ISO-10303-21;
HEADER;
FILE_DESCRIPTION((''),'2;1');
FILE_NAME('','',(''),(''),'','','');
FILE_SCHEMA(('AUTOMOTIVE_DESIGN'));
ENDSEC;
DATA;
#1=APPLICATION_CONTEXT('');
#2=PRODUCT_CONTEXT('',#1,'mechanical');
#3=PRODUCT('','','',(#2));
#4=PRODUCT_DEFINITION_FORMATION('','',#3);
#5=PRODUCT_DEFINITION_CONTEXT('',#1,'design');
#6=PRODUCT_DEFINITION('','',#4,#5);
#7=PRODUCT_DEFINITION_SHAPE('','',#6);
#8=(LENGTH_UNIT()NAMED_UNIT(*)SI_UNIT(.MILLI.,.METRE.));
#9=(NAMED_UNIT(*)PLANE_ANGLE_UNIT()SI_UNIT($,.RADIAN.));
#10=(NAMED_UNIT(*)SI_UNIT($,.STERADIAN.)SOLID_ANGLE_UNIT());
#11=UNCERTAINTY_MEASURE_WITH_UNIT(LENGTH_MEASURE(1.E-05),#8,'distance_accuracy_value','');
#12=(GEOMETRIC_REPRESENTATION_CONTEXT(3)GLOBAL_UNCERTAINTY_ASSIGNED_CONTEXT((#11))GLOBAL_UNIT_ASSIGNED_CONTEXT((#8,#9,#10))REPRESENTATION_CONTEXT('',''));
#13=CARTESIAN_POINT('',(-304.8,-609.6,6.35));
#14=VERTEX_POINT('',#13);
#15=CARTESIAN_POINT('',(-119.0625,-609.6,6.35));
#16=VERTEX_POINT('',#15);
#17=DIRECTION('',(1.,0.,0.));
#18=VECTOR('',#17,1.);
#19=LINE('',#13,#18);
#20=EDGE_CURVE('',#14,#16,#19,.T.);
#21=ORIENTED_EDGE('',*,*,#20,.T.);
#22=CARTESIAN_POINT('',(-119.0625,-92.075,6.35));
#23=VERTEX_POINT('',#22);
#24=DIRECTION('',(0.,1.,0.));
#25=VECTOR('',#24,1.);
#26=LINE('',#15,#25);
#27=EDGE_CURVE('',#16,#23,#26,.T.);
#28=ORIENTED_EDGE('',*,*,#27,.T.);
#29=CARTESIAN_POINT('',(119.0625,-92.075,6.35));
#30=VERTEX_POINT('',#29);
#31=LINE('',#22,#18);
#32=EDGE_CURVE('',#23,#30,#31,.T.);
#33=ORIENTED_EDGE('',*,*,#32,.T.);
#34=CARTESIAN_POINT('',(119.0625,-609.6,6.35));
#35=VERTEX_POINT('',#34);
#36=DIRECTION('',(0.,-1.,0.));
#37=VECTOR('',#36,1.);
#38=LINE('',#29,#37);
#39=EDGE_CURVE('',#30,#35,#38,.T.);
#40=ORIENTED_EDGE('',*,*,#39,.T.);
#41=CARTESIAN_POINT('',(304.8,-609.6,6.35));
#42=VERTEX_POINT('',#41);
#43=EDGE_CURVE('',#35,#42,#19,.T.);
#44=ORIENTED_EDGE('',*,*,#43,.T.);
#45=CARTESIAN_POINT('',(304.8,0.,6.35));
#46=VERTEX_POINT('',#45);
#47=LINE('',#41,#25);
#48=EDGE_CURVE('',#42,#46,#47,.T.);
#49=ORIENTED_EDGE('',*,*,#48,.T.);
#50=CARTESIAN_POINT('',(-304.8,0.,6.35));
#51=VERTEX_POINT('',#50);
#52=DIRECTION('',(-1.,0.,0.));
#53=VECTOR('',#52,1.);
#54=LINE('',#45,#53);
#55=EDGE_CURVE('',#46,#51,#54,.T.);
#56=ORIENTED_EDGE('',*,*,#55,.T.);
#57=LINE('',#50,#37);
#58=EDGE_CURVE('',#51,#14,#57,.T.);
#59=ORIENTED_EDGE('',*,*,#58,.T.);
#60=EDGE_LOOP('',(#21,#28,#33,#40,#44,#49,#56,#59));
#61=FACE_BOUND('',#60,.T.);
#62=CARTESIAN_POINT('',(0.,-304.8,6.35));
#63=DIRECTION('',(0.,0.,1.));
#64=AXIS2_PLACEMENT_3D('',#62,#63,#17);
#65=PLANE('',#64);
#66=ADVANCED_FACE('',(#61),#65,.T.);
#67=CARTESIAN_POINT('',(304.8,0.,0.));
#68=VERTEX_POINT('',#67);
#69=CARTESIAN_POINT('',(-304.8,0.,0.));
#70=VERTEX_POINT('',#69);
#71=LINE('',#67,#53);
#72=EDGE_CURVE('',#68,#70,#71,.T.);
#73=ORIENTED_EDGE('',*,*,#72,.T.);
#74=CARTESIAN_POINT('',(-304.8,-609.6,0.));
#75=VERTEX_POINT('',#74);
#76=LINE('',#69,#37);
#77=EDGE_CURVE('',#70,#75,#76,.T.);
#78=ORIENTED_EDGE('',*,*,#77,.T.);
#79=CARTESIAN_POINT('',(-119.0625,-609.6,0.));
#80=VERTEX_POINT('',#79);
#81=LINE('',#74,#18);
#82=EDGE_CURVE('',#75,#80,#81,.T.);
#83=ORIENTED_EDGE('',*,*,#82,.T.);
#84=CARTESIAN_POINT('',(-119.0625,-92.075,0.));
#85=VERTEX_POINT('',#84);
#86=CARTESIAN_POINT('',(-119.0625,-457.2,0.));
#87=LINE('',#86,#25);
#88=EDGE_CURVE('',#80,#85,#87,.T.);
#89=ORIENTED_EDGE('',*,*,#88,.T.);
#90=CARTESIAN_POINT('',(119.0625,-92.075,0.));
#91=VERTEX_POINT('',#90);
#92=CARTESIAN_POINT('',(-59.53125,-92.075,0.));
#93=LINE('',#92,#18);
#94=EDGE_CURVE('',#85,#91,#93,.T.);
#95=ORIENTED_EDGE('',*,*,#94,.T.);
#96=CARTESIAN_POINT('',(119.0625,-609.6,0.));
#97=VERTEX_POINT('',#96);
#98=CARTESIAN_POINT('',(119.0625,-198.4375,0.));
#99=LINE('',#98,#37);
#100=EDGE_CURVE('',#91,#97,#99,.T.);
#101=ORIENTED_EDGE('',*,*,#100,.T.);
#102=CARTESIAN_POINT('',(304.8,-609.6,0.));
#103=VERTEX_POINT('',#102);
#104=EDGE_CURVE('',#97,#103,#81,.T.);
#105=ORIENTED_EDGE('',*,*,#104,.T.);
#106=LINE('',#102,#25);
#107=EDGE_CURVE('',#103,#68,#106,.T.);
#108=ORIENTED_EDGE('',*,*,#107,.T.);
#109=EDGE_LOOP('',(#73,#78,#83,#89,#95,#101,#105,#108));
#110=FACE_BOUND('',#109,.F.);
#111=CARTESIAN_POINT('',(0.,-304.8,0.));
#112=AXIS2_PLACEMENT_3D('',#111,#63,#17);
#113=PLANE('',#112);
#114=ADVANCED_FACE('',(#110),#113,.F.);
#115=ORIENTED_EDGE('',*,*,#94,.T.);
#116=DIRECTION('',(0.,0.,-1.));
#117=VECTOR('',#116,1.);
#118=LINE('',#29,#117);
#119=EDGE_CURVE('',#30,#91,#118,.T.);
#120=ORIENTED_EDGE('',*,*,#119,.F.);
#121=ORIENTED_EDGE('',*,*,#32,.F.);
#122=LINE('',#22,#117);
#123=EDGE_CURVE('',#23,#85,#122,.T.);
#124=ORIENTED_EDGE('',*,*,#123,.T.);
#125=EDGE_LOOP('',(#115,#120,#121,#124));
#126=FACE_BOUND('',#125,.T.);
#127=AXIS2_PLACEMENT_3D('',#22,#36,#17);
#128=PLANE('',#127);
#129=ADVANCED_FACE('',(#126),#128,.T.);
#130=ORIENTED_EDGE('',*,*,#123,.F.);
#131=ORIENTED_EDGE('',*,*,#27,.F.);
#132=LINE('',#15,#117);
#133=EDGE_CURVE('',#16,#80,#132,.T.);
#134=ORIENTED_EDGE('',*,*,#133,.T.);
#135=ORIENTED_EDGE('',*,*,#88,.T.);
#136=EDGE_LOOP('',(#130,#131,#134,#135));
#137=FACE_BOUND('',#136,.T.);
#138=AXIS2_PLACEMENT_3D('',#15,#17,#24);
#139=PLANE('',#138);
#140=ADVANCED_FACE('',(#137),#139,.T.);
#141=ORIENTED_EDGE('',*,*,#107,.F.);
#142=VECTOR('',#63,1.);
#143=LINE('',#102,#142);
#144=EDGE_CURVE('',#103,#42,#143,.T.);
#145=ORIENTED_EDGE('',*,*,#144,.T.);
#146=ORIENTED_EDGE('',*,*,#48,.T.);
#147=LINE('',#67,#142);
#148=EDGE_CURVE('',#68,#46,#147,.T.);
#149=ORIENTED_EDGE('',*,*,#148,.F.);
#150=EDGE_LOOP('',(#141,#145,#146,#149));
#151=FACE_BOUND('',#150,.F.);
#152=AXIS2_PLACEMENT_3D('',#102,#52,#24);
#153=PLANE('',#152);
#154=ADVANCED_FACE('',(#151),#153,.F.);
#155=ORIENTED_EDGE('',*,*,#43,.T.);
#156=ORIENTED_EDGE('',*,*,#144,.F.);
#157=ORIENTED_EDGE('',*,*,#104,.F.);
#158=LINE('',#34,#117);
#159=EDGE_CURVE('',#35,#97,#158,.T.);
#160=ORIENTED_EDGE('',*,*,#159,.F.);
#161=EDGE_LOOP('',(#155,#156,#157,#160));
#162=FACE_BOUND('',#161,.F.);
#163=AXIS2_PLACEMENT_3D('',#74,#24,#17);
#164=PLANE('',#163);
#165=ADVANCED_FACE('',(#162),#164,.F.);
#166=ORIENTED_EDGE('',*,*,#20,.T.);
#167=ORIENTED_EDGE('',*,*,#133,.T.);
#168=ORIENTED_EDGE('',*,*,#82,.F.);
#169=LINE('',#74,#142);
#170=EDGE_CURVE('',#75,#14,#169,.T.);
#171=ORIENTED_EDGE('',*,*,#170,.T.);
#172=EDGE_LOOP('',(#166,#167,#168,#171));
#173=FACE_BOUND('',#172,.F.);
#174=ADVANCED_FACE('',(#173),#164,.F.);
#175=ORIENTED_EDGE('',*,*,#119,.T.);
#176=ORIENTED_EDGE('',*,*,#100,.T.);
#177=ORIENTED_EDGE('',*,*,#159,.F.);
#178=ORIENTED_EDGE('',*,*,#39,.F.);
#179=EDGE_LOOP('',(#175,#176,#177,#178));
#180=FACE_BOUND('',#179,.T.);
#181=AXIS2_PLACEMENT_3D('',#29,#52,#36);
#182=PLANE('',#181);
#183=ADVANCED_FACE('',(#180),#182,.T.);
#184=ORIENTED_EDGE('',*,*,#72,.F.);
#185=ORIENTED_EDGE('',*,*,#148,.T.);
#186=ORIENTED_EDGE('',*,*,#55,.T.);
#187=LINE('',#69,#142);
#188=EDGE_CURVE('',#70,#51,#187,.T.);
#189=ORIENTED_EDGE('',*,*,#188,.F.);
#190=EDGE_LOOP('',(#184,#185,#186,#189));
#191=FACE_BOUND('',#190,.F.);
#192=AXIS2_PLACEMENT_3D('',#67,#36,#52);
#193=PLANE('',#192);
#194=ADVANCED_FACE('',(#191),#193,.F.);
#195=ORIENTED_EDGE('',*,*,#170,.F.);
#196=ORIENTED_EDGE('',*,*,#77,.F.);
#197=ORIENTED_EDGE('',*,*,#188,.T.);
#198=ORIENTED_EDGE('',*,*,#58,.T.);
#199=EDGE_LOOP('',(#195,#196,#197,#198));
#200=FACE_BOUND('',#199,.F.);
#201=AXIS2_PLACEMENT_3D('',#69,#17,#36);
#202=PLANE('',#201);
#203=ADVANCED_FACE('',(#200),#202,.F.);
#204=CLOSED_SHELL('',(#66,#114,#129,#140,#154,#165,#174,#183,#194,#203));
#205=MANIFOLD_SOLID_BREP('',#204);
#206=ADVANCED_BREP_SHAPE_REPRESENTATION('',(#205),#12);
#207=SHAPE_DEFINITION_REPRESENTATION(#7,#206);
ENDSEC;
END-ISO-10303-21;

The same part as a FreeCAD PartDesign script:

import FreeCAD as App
import Part
import Sketcher
from FreeCAD import Vector
Q = App.Units.Quantity


def add_polygon(sketch, points):
    """Adds a closed chain of lines whose ends are joined by coincident constraints."""
    first, n = sketch.GeometryCount, len(points)
    for a, b in zip(points, points[1:] + points[:1]):
        sketch.addGeometry(Part.LineSegment(App.Vector(*a, 0), App.Vector(*b, 0)), False)
    for i in range(n):
        sketch.addConstraint(Sketcher.Constraint("Coincident", first + i, 2, first + (i + 1) % n, 1))

doc = App.newDocument("Part")
body = doc.addObject("PartDesign::Body", "Body")

sketch1 = doc.addObject("Sketcher::SketchObject", "Sketch")
body.addObject(sketch1)
sketch1.AttachmentSupport = (doc.XY_Plane, [""])
sketch1.MapMode = "FlatFace"
add_polygon(sketch1, [(-304.8, 0), (-304.8, -609.6), (304.8, -609.6), (304.8, 0)])
sketch1.addConstraint([
    Sketcher.Constraint("Vertical", 0),
    Sketcher.Constraint("Horizontal", 1),
    Sketcher.Constraint("Vertical", 2),
    Sketcher.Constraint("Horizontal", 3),
    Sketcher.Constraint("Symmetric", 2, 2, 3, 2, -1, 1),
    Sketcher.Constraint("Equal", 3, 0),
    Sketcher.Constraint("DistanceX", 0, 2, -1, 1, Q("12 in")),
])
pad1 = doc.addObject("PartDesign::Pad", "Pad")
body.addObject(pad1)
pad1.Profile = sketch1
pad1.Length = Q("0.25 in")

sketch2 = doc.addObject("Sketcher::SketchObject", "Sketch001")
body.addObject(sketch2)
sketch2.AttachmentSupport = (doc.XY_Plane, [""])
sketch2.MapMode = "FlatFace"
sketch2.AttachmentOffset = App.Placement(Vector(0, 0, 0.25 * 25.4), App.Rotation())
add_polygon(sketch2, [(119.0625, -609.6), (119.0625, -92.075), (-119.0625, -92.075), (-119.0625, -609.6)])
sketch2.addConstraint([
    Sketcher.Constraint("Vertical", 0),
    Sketcher.Constraint("Horizontal", 1),
    Sketcher.Constraint("Vertical", 2),
    Sketcher.Constraint("Horizontal", 3),
    Sketcher.Constraint("DistanceY", 2, 2, -1, 1, Q("24 in")),
    Sketcher.Constraint("DistanceX", 1, 2, 1, 1, Q("9.375 in")),
    Sketcher.Constraint("DistanceY", 0, 1, 0, 2, Q("20.375 in")),
    Sketcher.Constraint("DistanceX", -1, 1, 0, 2, Q("4.6875 in")),
])
pocket1 = doc.addObject("PartDesign::Pocket", "Pocket")
body.addObject(pocket1)
pocket1.Profile = sketch2
pocket1.Type = "ThroughAll"

doc.recompute()
